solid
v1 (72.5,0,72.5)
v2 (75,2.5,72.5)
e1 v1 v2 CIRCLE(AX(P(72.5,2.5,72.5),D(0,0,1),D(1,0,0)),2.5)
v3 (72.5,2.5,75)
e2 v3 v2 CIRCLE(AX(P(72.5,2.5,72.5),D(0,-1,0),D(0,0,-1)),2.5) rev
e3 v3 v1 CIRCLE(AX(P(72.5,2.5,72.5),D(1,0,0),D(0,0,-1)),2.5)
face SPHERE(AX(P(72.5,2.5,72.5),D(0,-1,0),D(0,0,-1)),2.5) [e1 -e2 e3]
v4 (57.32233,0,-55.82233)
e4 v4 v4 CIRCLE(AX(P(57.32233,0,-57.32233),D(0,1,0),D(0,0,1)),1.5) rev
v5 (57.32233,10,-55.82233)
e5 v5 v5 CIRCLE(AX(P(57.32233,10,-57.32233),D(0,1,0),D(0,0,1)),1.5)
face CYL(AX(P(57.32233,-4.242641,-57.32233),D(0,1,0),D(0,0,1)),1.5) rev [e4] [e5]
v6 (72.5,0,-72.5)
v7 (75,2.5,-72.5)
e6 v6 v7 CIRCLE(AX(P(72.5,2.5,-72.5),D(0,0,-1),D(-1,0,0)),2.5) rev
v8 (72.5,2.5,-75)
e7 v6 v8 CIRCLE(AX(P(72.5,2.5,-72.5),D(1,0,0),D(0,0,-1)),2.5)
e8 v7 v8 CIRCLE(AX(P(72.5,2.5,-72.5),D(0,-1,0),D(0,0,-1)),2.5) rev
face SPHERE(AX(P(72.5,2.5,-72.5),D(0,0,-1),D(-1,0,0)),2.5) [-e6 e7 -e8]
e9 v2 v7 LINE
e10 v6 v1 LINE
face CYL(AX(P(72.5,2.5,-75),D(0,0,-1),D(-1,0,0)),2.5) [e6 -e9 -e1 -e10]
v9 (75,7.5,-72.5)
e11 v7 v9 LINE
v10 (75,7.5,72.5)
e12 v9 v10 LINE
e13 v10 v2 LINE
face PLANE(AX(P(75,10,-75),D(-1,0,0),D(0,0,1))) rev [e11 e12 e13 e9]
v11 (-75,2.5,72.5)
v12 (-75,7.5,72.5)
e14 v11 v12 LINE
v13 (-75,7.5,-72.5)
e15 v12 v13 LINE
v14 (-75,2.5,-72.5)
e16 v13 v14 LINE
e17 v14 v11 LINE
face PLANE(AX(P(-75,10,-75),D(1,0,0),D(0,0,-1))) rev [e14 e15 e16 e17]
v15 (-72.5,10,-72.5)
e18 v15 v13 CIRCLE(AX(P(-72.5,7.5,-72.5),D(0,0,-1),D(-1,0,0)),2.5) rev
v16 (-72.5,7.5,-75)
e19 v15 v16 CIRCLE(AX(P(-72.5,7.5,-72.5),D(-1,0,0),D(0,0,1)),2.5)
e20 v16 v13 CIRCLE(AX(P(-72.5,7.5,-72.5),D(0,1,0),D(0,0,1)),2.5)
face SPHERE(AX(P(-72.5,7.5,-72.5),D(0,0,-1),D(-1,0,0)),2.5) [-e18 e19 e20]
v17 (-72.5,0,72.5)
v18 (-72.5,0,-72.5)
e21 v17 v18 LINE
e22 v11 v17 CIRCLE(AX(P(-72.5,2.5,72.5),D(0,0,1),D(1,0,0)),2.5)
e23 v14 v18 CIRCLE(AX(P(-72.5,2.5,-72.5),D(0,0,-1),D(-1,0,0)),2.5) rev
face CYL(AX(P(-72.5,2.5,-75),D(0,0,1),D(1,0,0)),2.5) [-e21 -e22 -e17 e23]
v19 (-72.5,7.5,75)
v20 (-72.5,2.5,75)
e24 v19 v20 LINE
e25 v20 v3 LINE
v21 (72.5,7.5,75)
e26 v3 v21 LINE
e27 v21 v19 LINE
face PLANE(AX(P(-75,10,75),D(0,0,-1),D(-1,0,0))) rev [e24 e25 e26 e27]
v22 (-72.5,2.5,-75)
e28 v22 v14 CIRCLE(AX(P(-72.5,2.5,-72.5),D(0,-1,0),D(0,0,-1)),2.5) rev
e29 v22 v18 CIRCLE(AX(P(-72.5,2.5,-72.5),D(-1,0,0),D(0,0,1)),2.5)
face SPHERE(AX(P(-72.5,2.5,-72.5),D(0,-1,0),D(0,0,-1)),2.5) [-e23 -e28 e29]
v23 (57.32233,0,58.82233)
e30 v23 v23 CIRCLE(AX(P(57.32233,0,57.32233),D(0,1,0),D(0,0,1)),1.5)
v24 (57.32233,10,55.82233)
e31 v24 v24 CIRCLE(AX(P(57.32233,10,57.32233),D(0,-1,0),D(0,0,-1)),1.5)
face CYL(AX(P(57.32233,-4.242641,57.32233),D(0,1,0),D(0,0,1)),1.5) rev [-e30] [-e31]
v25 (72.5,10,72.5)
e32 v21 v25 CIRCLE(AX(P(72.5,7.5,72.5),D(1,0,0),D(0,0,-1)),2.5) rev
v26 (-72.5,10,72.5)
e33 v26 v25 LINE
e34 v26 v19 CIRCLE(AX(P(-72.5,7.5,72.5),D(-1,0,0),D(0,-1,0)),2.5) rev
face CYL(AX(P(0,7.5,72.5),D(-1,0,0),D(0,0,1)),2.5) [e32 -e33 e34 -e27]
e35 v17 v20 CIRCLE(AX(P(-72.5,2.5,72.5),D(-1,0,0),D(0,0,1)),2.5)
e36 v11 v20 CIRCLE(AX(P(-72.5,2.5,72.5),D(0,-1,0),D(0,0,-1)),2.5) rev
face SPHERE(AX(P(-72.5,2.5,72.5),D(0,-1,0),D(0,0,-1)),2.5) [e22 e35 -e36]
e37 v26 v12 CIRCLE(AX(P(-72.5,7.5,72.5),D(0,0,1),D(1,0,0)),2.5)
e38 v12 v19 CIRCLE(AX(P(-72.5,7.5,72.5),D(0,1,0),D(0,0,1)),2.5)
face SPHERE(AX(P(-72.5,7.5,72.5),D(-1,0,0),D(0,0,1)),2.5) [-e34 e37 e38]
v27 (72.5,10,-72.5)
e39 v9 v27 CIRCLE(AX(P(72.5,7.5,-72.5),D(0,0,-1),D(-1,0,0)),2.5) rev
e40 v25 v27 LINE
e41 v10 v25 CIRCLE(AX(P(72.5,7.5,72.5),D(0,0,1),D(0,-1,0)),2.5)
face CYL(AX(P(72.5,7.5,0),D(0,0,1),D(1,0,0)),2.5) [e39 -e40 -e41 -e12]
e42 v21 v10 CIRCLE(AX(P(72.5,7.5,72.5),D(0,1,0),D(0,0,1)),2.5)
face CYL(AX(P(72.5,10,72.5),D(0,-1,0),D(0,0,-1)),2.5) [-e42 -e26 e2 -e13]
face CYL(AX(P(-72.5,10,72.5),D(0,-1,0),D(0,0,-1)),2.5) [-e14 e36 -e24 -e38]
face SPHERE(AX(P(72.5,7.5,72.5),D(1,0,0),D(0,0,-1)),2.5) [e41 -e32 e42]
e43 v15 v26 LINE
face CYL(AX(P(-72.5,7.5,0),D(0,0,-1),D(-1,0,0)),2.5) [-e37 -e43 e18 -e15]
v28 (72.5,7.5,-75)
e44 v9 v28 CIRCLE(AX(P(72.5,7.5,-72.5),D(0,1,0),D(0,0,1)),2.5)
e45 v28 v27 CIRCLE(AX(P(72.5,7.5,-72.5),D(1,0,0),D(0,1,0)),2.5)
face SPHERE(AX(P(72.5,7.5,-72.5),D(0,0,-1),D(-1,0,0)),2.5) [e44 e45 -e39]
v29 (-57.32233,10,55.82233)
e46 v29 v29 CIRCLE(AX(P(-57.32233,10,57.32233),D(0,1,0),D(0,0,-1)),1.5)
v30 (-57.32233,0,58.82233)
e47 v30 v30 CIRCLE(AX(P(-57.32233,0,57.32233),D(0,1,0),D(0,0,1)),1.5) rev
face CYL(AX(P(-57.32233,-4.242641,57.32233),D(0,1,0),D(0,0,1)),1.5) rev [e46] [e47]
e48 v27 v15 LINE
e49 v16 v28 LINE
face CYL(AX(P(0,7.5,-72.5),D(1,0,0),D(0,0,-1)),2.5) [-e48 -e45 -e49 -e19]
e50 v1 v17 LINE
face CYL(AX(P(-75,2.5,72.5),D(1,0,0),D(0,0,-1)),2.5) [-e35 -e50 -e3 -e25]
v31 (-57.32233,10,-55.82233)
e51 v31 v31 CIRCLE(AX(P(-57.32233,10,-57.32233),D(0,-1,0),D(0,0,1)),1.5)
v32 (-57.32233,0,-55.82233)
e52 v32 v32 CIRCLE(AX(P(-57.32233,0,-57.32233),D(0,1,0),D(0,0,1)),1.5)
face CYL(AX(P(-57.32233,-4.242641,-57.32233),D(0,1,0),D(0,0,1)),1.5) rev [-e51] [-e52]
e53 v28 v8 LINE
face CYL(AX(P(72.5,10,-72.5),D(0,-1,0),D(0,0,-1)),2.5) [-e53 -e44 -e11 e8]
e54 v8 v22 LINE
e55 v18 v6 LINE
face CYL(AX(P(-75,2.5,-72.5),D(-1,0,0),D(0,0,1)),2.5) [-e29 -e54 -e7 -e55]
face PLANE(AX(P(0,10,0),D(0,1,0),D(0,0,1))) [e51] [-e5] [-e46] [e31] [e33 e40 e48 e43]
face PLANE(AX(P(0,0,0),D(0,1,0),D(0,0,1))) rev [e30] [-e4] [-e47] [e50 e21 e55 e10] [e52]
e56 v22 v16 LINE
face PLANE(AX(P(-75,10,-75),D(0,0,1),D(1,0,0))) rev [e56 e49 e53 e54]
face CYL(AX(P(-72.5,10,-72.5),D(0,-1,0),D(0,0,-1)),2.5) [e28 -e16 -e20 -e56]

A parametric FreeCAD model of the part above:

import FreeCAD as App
import Part
import Sketcher
from FreeCAD import Vector
Q = App.Units.Quantity


def edges_at(feature, points):
    """Names of the edges that pass closest to the given points."""
    edges = feature.Shape.Edges
    near = lambda p: min(range(len(edges)), key=lambda i: edges[i].distToShape(Part.Vertex(*p))[0])
    return sorted({f"Edge{near(p) + 1}" for p in points})


def add_polygon(sketch, points):
    """Adds a closed chain of lines whose ends are joined by coincident constraints."""
    first, n = sketch.GeometryCount, len(points)
    for a, b in zip(points, points[1:] + points[:1]):
        sketch.addGeometry(Part.LineSegment(App.Vector(*a, 0), App.Vector(*b, 0)), False)
    for i in range(n):
        sketch.addConstraint(Sketcher.Constraint("Coincident", first + i, 2, first + (i + 1) % n, 1))

doc = App.newDocument("Part")
body = doc.addObject("PartDesign::Body", "Body")

# Sketch on XZ plane
sketch1 = doc.addObject("Sketcher::SketchObject", "Sketch")
body.addObject(sketch1)
sketch1.AttachmentSupport = (doc.XZ_Plane, [""])
sketch1.MapMode = "FlatFace"
add_polygon(sketch1, [(-75, -75), (-75, 75), (75, 75), (75, -75)])  # lines 0-3
sketch1.addConstraint([
    Sketcher.Constraint("Vertical", 0),
    Sketcher.Constraint("Horizontal", 1),
    Sketcher.Constraint("Vertical", 2),
    Sketcher.Constraint("Horizontal", 3),
    Sketcher.Constraint("Symmetric", 0, 2, 2, 2, -1, 1),
    Sketcher.Constraint("Equal", 3, 0),
    Sketcher.Constraint("DistanceX", 1, 1, 1, 2, Q("150 mm")),
])
pad1 = doc.addObject("PartDesign::Pad", "Pad")
body.addObject(pad1)
pad1.Profile = sketch1
pad1.Length = 10
pad1.Reversed = True

# Sketch on XZ plane
sketch2 = doc.addObject("Sketcher::SketchObject", "Sketch001")
body.addObject(sketch2)
sketch2.AttachmentSupport = (doc.XZ_Plane, [""])
sketch2.MapMode = "FlatFace"
sketch2.AttachmentOffset = App.Placement(Vector(0, 0, -10), App.Rotation())
sketch2.addGeometry(Part.Circle(Vector(57.3, -57.3, 0), Vector(0, 0, 1), 1.5), False)
sketch2.addConstraint([
    Sketcher.Constraint("Diameter", 0, Q("3 mm")),
    Sketcher.Constraint("DistanceX", -1, 1, 0, 3, Q("57.32233 mm")),
    Sketcher.Constraint("DistanceY", 0, 3, -1, 1, Q("57.32233 mm")),
])
pocket1 = doc.addObject("PartDesign::Pocket", "Pocket")
body.addObject(pocket1)
pocket1.Profile = sketch2
pocket1.Length = 10
pocket1.Reversed = True
doc.recompute()

mirrored = doc.addObject("PartDesign::Mirrored", "Mirrored")
body.addObject(mirrored)
mirrored.Originals = [pocket1]
mirrored.MirrorPlane = (doc.XY_Plane, [""])
body.Tip = mirrored
doc.recompute()

mirrored2 = doc.addObject("PartDesign::Mirrored", "Mirrored001")
body.addObject(mirrored2)
mirrored2.Originals = [pocket1]
mirrored2.MirrorPlane = (doc.YZ_Plane, [""])
body.Tip = mirrored2

# Sketch on XZ plane
sketch3 = doc.addObject("Sketcher::SketchObject", "Sketch002")
body.addObject(sketch3)
sketch3.AttachmentSupport = (doc.XZ_Plane, [""])
sketch3.MapMode = "FlatFace"
sketch3.AttachmentOffset = App.Placement(Vector(0, 0, -10), App.Rotation())
sketch3.addGeometry(Part.Circle(Vector(-57.3, 57.3, 0), Vector(0, 0, 1), 1.5), False)
sketch3.addConstraint([
    Sketcher.Constraint("Diameter", 0, Q("3 mm")),
    Sketcher.Constraint("DistanceX", 0, 3, -1, 1, Q("57.32233 mm")),
    Sketcher.Constraint("DistanceY", -1, 1, 0, 3, Q("57.32233 mm")),
])
pocket2 = doc.addObject("PartDesign::Pocket", "Pocket001")
body.addObject(pocket2)
pocket2.Profile = sketch3
pocket2.Length = 10
pocket2.Reversed = True
doc.recompute()

fillet = doc.addObject("PartDesign::Fillet", "Fillet")
body.addObject(fillet)
fillet.Base = (pocket2, edges_at(pocket2, [
    (-75, 10, 0),
    (0, 10, 75),
    (75, 10, 0),
    (0, 0, 75),
    (-75, 0, 0),
    (0, 0, -75),
    (75, 0, 0),
    (75, 5, 75),
    (-75, 5, 75),
    (-75, 5, -75),
    (75, 5, -75),
    (0, 10, -75),
]))
fillet.Radius = 2.5

doc.recompute()
